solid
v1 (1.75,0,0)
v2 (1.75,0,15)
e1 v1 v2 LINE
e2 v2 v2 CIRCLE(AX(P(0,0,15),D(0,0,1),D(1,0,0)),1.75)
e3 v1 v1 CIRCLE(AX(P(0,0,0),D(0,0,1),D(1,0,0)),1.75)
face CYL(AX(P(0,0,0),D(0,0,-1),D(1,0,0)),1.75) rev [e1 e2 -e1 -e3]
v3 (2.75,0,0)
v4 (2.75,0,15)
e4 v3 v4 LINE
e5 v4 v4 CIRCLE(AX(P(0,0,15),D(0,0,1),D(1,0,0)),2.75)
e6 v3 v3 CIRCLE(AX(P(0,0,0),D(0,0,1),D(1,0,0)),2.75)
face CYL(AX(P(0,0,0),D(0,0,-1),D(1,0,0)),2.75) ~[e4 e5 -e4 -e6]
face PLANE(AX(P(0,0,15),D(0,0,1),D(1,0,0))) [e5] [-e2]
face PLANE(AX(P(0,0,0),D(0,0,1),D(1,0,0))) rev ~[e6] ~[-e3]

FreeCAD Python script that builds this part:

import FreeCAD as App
import Part
import Sketcher
from FreeCAD import Vector
Q = App.Units.Quantity

doc = App.newDocument("Part")
body = doc.addObject("PartDesign::Body", "Body")

# Sketch on XY plane
sketch1 = doc.addObject("Sketcher::SketchObject", "Sketch")
body.addObject(sketch1)
sketch1.AttachmentSupport = (doc.XY_Plane, [""])
sketch1.MapMode = "FlatFace"
sketch1.addGeometry(Part.Circle(Vector(0, 0, 0), Vector(0, 0, 1), 2.75), False)
sketch1.addGeometry(Part.Circle(Vector(0, 0, 0), Vector(0, 0, 1), 1.75), False)
sketch1.addConstraint(Sketcher.Constraint("Coincident", 0, 3, -1, 1))
sketch1.addConstraint(Sketcher.Constraint("Coincident", 1, 3, -1, 1))
sketch1.addConstraint(Sketcher.Constraint("Diameter", 0, Q("5.5 mm")))
sketch1.addConstraint(Sketcher.Constraint("Diameter", 1, Q("3.5 mm")))
pad1 = doc.addObject("PartDesign::Pad", "Pad")
body.addObject(pad1)
pad1.Profile = sketch1
pad1.Length = 15

doc.recompute()
